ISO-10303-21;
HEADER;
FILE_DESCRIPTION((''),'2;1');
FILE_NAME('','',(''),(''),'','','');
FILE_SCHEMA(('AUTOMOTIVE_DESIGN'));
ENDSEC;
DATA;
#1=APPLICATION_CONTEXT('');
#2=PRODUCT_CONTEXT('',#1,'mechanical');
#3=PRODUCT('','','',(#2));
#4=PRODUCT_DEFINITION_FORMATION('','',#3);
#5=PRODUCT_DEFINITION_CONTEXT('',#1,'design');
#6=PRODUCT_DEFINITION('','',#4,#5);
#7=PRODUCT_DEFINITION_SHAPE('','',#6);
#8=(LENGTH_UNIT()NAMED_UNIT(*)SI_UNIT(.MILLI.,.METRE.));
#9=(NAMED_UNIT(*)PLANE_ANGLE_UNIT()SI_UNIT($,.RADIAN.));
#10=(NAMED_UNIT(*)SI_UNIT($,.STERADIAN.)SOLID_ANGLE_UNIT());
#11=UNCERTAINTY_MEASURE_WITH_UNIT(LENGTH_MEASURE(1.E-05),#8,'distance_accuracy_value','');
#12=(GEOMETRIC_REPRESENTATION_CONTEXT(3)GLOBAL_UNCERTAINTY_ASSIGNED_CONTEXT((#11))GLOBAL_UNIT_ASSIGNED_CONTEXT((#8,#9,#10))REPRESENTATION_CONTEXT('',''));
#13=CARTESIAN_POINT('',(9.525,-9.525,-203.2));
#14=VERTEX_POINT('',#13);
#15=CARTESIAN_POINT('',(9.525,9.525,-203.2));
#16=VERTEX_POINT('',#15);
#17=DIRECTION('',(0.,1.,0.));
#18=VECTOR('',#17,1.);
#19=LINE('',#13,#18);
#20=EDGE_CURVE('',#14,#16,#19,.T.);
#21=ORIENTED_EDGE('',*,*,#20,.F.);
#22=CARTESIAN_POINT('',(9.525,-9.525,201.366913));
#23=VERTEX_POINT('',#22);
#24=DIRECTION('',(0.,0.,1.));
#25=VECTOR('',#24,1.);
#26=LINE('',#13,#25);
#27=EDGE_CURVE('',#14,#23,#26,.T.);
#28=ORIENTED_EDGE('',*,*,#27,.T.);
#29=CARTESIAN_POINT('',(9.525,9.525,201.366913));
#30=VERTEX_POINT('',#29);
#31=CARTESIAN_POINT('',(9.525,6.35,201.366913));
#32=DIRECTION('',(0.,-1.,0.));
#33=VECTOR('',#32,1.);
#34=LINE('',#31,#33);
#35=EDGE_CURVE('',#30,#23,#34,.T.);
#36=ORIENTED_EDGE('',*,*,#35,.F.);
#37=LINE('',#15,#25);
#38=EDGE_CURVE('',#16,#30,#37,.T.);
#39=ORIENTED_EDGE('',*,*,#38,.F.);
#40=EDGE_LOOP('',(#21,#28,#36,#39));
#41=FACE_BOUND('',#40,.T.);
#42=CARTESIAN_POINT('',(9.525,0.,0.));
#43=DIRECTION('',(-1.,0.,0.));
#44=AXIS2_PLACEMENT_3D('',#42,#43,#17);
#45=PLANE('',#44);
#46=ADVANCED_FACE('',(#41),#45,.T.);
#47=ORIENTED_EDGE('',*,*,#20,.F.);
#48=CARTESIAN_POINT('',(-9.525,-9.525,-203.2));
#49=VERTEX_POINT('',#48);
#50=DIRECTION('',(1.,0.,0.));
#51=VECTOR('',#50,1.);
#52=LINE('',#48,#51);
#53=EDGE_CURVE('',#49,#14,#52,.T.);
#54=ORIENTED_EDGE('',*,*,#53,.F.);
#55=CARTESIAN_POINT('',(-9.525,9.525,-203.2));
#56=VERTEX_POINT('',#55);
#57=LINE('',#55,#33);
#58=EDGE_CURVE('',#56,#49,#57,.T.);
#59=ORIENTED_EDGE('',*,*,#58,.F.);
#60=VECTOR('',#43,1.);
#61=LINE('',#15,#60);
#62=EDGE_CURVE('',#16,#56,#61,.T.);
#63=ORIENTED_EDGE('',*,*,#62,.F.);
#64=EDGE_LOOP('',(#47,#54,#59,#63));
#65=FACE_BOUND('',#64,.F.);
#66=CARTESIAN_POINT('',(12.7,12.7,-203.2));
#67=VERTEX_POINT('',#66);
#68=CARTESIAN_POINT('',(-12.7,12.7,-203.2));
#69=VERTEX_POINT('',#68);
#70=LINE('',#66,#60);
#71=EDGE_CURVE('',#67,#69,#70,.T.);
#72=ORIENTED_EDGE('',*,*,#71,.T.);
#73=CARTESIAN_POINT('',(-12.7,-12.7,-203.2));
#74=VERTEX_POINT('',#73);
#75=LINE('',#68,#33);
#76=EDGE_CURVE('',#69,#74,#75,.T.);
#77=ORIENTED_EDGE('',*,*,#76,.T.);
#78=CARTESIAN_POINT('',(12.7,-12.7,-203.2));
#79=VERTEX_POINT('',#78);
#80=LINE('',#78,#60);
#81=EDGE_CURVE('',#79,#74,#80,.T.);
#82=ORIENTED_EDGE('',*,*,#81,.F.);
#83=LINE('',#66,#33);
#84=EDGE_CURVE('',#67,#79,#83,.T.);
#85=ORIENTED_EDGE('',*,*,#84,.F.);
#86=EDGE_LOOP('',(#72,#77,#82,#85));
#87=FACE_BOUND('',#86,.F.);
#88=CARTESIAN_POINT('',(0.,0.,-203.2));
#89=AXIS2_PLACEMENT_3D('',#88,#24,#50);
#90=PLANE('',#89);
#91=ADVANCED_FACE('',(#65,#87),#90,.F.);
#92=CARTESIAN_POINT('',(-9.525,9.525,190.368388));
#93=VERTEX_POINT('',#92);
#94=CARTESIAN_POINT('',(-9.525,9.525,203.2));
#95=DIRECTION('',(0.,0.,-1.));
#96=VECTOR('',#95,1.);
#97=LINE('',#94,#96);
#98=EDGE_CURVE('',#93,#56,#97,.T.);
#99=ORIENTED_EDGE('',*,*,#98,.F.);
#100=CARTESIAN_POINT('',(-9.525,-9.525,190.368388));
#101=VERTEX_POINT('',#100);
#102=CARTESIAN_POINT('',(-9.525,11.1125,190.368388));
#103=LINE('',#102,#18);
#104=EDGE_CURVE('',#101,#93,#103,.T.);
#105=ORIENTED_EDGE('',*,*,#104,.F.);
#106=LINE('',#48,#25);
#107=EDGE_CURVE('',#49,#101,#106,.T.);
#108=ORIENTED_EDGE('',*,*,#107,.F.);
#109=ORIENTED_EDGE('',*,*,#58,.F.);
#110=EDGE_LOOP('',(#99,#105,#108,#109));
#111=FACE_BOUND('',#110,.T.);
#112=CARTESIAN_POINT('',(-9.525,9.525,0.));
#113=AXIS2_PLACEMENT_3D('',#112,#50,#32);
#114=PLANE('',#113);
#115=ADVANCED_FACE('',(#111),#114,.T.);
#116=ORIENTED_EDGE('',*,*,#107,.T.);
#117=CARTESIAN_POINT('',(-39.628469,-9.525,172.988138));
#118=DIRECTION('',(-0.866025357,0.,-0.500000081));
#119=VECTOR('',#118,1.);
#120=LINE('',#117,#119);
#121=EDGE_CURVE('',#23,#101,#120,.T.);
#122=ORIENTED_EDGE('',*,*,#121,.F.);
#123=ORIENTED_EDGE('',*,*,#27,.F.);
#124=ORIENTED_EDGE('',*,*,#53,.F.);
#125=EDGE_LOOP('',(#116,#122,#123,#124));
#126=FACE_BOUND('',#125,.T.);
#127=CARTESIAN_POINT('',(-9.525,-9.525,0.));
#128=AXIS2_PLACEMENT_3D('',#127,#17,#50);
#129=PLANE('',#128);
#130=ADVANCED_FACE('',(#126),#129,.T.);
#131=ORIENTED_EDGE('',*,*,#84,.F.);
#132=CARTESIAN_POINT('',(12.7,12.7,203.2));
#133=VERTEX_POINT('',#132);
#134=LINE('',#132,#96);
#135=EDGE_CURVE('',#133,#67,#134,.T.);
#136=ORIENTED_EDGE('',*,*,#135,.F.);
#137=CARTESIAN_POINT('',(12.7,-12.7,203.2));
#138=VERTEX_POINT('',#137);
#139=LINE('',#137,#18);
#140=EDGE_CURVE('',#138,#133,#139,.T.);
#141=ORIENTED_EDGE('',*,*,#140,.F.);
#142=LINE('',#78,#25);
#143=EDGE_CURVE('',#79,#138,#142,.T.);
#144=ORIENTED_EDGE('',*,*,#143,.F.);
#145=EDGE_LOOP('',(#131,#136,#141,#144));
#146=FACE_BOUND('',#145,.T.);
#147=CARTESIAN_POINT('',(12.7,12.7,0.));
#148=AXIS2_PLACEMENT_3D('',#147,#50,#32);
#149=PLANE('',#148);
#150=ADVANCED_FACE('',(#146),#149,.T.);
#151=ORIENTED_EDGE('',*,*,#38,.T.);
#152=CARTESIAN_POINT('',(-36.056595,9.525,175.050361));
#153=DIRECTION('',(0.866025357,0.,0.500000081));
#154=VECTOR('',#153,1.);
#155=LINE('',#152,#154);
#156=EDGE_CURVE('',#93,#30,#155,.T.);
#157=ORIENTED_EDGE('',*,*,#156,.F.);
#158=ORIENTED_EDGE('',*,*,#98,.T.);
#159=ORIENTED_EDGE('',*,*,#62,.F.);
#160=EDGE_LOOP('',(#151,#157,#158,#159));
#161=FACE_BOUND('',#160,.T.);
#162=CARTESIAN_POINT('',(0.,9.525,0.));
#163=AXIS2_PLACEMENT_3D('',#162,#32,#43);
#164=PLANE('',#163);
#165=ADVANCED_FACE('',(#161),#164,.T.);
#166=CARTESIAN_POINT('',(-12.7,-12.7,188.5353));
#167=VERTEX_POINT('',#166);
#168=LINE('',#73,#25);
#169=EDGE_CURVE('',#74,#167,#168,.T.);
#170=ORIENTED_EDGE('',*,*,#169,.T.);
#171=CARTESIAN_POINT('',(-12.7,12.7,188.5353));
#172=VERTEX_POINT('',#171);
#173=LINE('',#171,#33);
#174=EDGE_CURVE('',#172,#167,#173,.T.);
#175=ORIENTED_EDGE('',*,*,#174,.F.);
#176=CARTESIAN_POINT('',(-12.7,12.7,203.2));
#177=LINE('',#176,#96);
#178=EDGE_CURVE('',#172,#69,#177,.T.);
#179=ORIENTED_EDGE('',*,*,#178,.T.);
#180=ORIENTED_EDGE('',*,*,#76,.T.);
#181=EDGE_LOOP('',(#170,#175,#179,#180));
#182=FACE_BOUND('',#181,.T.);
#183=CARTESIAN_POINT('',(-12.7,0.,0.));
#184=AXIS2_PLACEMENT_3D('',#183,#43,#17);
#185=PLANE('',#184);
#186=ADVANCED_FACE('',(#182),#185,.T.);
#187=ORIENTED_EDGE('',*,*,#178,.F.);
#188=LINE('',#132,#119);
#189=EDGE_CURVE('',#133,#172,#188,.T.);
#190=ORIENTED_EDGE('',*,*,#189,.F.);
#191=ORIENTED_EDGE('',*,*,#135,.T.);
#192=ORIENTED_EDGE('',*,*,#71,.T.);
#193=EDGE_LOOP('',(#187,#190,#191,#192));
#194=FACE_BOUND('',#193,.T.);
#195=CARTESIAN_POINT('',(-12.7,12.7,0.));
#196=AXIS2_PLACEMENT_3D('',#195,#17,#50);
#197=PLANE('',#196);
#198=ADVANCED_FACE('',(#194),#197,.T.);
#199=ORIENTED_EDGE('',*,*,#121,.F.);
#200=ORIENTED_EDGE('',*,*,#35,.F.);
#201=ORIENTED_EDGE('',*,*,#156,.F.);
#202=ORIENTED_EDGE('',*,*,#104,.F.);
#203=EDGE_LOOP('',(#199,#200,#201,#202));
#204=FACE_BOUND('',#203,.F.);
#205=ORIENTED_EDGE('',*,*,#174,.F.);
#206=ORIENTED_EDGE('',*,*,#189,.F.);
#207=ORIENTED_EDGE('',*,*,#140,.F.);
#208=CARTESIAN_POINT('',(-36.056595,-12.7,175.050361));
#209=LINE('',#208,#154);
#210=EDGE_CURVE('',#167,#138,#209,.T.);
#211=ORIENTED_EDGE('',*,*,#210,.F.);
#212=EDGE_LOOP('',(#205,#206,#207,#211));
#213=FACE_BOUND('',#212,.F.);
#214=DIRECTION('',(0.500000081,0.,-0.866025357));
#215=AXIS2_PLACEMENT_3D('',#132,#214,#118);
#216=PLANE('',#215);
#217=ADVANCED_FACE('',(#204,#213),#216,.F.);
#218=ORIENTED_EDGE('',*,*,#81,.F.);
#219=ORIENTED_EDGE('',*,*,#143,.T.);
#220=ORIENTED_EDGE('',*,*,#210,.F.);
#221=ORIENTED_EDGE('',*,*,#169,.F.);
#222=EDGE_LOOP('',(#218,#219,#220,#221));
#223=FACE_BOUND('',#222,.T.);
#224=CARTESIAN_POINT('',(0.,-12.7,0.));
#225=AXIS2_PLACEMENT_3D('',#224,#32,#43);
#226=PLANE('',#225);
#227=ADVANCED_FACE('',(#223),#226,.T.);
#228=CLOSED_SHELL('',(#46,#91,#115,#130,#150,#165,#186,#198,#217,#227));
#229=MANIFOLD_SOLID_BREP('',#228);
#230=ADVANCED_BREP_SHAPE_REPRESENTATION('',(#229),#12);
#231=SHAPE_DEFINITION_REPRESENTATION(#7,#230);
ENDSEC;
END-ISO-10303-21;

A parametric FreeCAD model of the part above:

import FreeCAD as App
import Part
import Sketcher
from FreeCAD import Vector
Q = App.Units.Quantity


def add_polygon(sketch, points):
    """Adds a closed chain of lines whose ends are joined by coincident constraints."""
    first, n = sketch.GeometryCount, len(points)
    for a, b in zip(points, points[1:] + points[:1]):
        sketch.addGeometry(Part.LineSegment(App.Vector(*a, 0), App.Vector(*b, 0)), False)
    for i in range(n):
        sketch.addConstraint(Sketcher.Constraint("Coincident", first + i, 2, first + (i + 1) % n, 1))

doc = App.newDocument("Part")
body = doc.addObject("PartDesign::Body", "Body")

# Sketch on XY plane
sketch1 = body.newObject("Sketcher::SketchObject", "Sketch")
sketch1.AttachmentSupport = (doc.getObject("XY_Plane"), [""])
sketch1.MapMode = "FlatFace"
add_polygon(sketch1, [(-13, 13), (-13, -13), (13, -13), (13, 13)])  # lines 0-3
add_polygon(sketch1, [(-10, 10), (10, 10), (10, -10), (-10, -10)])  # lines 4-7
sketch1.addConstraint(Sketcher.Constraint("Vertical", 0))
sketch1.addConstraint(Sketcher.Constraint("Horizontal", 1))
sketch1.addConstraint(Sketcher.Constraint("Vertical", 2))
sketch1.addConstraint(Sketcher.Constraint("Horizontal", 3))
sketch1.addConstraint(Sketcher.Constraint("Horizontal", 4))
sketch1.addConstraint(Sketcher.Constraint("Vertical", 5))
sketch1.addConstraint(Sketcher.Constraint("Horizontal", 6))
sketch1.addConstraint(Sketcher.Constraint("Vertical", 7))
sketch1.addConstraint(Sketcher.Constraint("Symmetric", 0, 2, 2, 2, -1, 1))
sketch1.addConstraint(Sketcher.Constraint("Symmetric", 4, 2, 6, 2, -1, 1))
sketch1.addConstraint(Sketcher.Constraint("Equal", 3, 0))
sketch1.addConstraint(Sketcher.Constraint("Equal", 6, 5))
sketch1.addConstraint(Sketcher.Constraint("DistanceX", 1, 1, 1, 2, Q("1 in")))
sketch1.addConstraint(Sketcher.Constraint("DistanceX", 4, 2, 2, 2, Q("0.125 in")))
pad1 = body.newObject("PartDesign::Pad", "Pad")
pad1.Profile = sketch1
pad1.Length = Q("16 in")
pad1.Midplane = True

# Sketch on XZ plane
sketch2 = body.newObject("Sketcher::SketchObject", "Sketch001")
sketch2.AttachmentSupport = (doc.getObject("XZ_Plane"), [""])
sketch2.MapMode = "FlatFace"
sketch2.AttachmentOffset = App.Placement(Vector(0, 0, -0.5 * 25.4), App.Rotation())
add_polygon(sketch2, [(-13, 189), (-13, 203), (13, 203)])  # lines 0-2
sketch2.addConstraint(Sketcher.Constraint("Vertical", 0))
sketch2.addConstraint(Sketcher.Constraint("Horizontal", 1))
sketch2.addConstraint(Sketcher.Constraint("DistanceX", 1, 1, 1, 2, Q("1 in")))
sketch2.addConstraint(Sketcher.Constraint("DistanceY", -1, 1, 0, 2, Q("8 in")))
sketch2.addConstraint(Sketcher.Constraint("Angle", 2, Q("-150 deg")))
sketch2.addConstraint(Sketcher.Constraint("DistanceX", 0, 2, -1, 1, Q("0.5 in")))
pocket1 = body.newObject("PartDesign::Pocket", "Pocket")
pocket1.Profile = sketch2
pocket1.Type = "ThroughAll"
pocket1.Reversed = True

doc.recompute()
